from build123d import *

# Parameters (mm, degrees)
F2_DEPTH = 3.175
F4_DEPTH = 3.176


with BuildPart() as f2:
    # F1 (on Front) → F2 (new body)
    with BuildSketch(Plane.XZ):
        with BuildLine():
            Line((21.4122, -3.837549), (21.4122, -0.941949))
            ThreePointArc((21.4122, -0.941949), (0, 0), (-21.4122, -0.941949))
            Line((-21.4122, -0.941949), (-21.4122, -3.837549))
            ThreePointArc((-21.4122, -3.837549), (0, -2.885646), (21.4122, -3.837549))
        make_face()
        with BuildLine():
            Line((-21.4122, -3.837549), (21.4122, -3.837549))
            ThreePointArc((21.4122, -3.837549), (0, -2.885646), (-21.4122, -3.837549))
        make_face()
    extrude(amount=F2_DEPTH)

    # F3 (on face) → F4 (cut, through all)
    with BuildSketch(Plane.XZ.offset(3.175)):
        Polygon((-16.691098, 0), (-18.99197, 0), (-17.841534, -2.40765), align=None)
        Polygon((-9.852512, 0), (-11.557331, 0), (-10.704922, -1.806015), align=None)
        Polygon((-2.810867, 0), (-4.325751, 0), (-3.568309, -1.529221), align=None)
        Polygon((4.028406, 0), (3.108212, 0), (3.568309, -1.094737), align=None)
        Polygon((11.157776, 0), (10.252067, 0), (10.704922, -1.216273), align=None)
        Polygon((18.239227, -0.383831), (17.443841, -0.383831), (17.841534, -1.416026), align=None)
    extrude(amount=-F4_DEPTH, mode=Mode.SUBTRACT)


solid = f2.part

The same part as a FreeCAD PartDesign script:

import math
import FreeCAD as App
import Part
import Sketcher
Q = App.Units.Quantity

doc = App.newDocument("Part")
params = doc.addObject("Spreadsheet::Sheet", "Params")
for row, (alias, value) in enumerate([
    ("sketch1_width", "1.686 in"),
    ("sketch1_height", "0.114 in"),
    ("pad1_length", "0.125 in"),
], start=1):
    params.set(f"A{row}", alias)
    params.set(f"B{row}", "=" + value)
    params.setAlias(f"B{row}", alias)

body = doc.addObject("PartDesign::Body", "Body")

# Sketch on XZ plane
sketch1 = body.newObject("Sketcher::SketchObject", "Sketch")
sketch1.AttachmentSupport = (doc.getObject("XZ_Plane"), [""])
sketch1.MapMode = "FlatFace"
sketch1.addGeometry([
    Part.LineSegment(App.Vector(21.4, -3.8, 0), App.Vector(21.4, -0.9, 0)),
    Part.ArcOfCircle(Part.Circle(App.Vector(0, -243.8, 0), App.Vector(0, 0, 1), 243.8), math.radians(84.96), math.radians(95.04)),
    Part.LineSegment(App.Vector(-21.4, -0.9, 0), App.Vector(-21.4, -3.8, 0)),
    Part.LineSegment(App.Vector(-21.4, -3.8, 0), App.Vector(21.4, -3.8, 0)),
], False)
sketch1.addConstraint([
    Sketcher.Constraint("Coincident", 0, 2, 1, 1),
    Sketcher.Constraint("Coincident", 1, 2, 2, 1),
    Sketcher.Constraint("Coincident", 2, 2, 3, 1),
    Sketcher.Constraint("Coincident", 3, 2, 0, 1),
    Sketcher.Constraint("Vertical", 0),
    Sketcher.Constraint("Vertical", 2),
    Sketcher.Constraint("Horizontal", 3),
    Sketcher.Constraint("Symmetric", 0, 2, 1, 2, -2),
    Sketcher.Constraint("DistanceX", 3, 1, 3, 2, Q("1.686 in")),
    Sketcher.Constraint("DistanceY", 0, 1, 0, 2, Q("0.114 in")),
    Sketcher.Constraint("Radius", 1, Q("243.839941 mm")),
    Sketcher.Constraint("DistanceY", 1, 3, -1, 1, Q("243.839941 mm")),
])
sketch1.setExpression("Constraints[8]", "Params.sketch1_width")
sketch1.setExpression("Constraints[9]", "Params.sketch1_height")
pad1 = body.newObject("PartDesign::Pad", "Pad")
pad1.Profile = sketch1
pad1.setExpression("Length", "Params.pad1_length")

# Sketch on XZ plane
sketch2 = body.newObject("Sketcher::SketchObject", "Sketch001")
sketch2.AttachmentSupport = (doc.getObject("XZ_Plane"), [""])
sketch2.MapMode = "FlatFace"
sketch2.AttachmentOffset = App.Placement(App.Vector(0, 0, 0.125 * 25.4), App.Rotation())
sketch2.addGeometry([
    Part.LineSegment(App.Vector(-16.7, 0, 0), App.Vector(-19, 0, 0)),  # 0
    Part.LineSegment(App.Vector(-19, 0, 0), App.Vector(-17.8, -2.4, 0)),  # 1
    Part.LineSegment(App.Vector(-17.8, -2.4, 0), App.Vector(-16.7, 0, 0)),  # 2
    Part.LineSegment(App.Vector(-9.9, 0, 0), App.Vector(-11.6, 0, 0)),  # 3
    Part.LineSegment(App.Vector(-11.6, 0, 0), App.Vector(-10.7, -1.8, 0)),  # 4
    Part.LineSegment(App.Vector(-10.7, -1.8, 0), App.Vector(-9.9, 0, 0)),  # 5
    Part.LineSegment(App.Vector(-2.8, 0, 0), App.Vector(-4.3, 0, 0)),  # 6
    Part.LineSegment(App.Vector(-4.3, 0, 0), App.Vector(-3.6, -1.5, 0)),  # 7
    Part.LineSegment(App.Vector(-3.6, -1.5, 0), App.Vector(-2.8, 0, 0)),  # 8
    Part.LineSegment(App.Vector(4, 0, 0), App.Vector(3.1, 0, 0)),  # 9
    Part.LineSegment(App.Vector(3.1, 0, 0), App.Vector(3.6, -1.1, 0)),  # 10
    Part.LineSegment(App.Vector(3.6, -1.1, 0), App.Vector(4, 0, 0)),  # 11
    Part.LineSegment(App.Vector(11.2, 0, 0), App.Vector(10.3, 0, 0)),  # 12
    Part.LineSegment(App.Vector(10.3, 0, 0), App.Vector(10.7, -1.2, 0)),  # 13
    Part.LineSegment(App.Vector(10.7, -1.2, 0), App.Vector(11.2, 0, 0)),  # 14
    Part.LineSegment(App.Vector(18.2, -0.4, 0), App.Vector(17.4, -0.4, 0)),  # 15
    Part.LineSegment(App.Vector(17.4, -0.4, 0), App.Vector(17.8, -1.4, 0)),  # 16
    Part.LineSegment(App.Vector(17.8, -1.4, 0), App.Vector(18.2, -0.4, 0)),  # 17
], False)
sketch2.addConstraint([
    Sketcher.Constraint("Coincident", 0, 2, 1, 1),
    Sketcher.Constraint("Coincident", 1, 2, 2, 1),
    Sketcher.Constraint("Coincident", 2, 2, 0, 1),
    Sketcher.Constraint("Coincident", 3, 2, 4, 1),
    Sketcher.Constraint("Coincident", 4, 2, 5, 1),
    Sketcher.Constraint("Coincident", 5, 2, 3, 1),
    Sketcher.Constraint("Coincident", 6, 2, 7, 1),
    Sketcher.Constraint("Coincident", 7, 2, 8, 1),
    Sketcher.Constraint("Coincident", 8, 2, 6, 1),
    Sketcher.Constraint("Coincident", 9, 2, 10, 1),
    Sketcher.Constraint("Coincident", 10, 2, 11, 1),
    Sketcher.Constraint("Coincident", 11, 2, 9, 1),
    Sketcher.Constraint("Coincident", 12, 2, 13, 1),
    Sketcher.Constraint("Coincident", 13, 2, 14, 1),
    Sketcher.Constraint("Coincident", 14, 2, 12, 1),
    Sketcher.Constraint("Coincident", 15, 2, 16, 1),
    Sketcher.Constraint("Coincident", 16, 2, 17, 1),
    Sketcher.Constraint("Coincident", 17, 2, 15, 1),
    Sketcher.Constraint("Horizontal", 0),
    Sketcher.Constraint("Horizontal", 3),
    Sketcher.Constraint("Horizontal", 6),
    Sketcher.Constraint("Horizontal", 9),
    Sketcher.Constraint("Horizontal", 12),
    Sketcher.Constraint("Horizontal", 15),
    Sketcher.Constraint("PointOnObject", 0, 2, -1),
    Sketcher.Constraint("PointOnObject", 3, 2, -1),
    Sketcher.Constraint("PointOnObject", 6, 2, -1),
    Sketcher.Constraint("PointOnObject", 9, 2, -1),
    Sketcher.Constraint("PointOnObject", 12, 2, -1),
    Sketcher.Constraint("Equal", 1, 2),
    Sketcher.Constraint("Equal", 4, 5),
    Sketcher.Constraint("Equal", 7, 8),
    Sketcher.Constraint("Equal", 10, 11),
    Sketcher.Constraint("Equal", 13, 14),
    Sketcher.Constraint("Equal", 16, 17),
    Sketcher.Constraint("DistanceY", 10, 2, -1, 1, Q("0.0430999 in")),
    Sketcher.Constraint("DistanceX", 0, 2, 0, 1, Q("2.300872 mm")),
    Sketcher.Constraint("DistanceX", 3, 2, 3, 1, Q("1.704819 mm")),
    Sketcher.Constraint("DistanceX", 12, 2, 12, 1, Q("0.905709 mm")),
    Sketcher.Constraint("DistanceX", 2, 2, -1, 1, Q("16.691098 mm")),
    Sketcher.Constraint("Distance", 4, Q("1.997071 mm")),
    Sketcher.Constraint("Distance", 16, Q("1.106158 mm")),
    Sketcher.Constraint("DistanceX", 6, 2, 6, 1, Q("1.514884 mm")),
    Sketcher.Constraint("DistanceX", 9, 2, 9, 1, Q("0.920194 mm")),
    Sketcher.Constraint("DistanceX", 15, 2, 15, 1, Q("0.795386 mm")),
    Sketcher.Constraint("DistanceY", 1, 2, -1, 1, Q("2.40765 mm")),
    Sketcher.Constraint("DistanceX", 3, 2, -1, 1, Q("11.557331 mm")),
    Sketcher.Constraint("DistanceX", 6, 2, -1, 1, Q("4.325751 mm")),
    Sketcher.Constraint("DistanceY", 7, 2, -1, 1, Q("1.529221 mm")),
    Sketcher.Constraint("DistanceX", -1, 1, 9, 2, Q("3.108212 mm")),
    Sketcher.Constraint("DistanceX", -1, 1, 15, 2, Q("17.443841 mm")),
    Sketcher.Constraint("DistanceY", 15, 2, -1, 1, Q("0.383831 mm")),
    Sketcher.Constraint("DistanceX", 11, 2, 12, 2, Q("6.223661 mm")),
    Sketcher.Constraint("DistanceY", 13, 2, 15, 2, Q("0.832442 mm")),
])
pocket1 = body.newObject("PartDesign::Pocket", "Pocket")
pocket1.Profile = sketch2
pocket1.Type = "ThroughAll"

doc.recompute()
